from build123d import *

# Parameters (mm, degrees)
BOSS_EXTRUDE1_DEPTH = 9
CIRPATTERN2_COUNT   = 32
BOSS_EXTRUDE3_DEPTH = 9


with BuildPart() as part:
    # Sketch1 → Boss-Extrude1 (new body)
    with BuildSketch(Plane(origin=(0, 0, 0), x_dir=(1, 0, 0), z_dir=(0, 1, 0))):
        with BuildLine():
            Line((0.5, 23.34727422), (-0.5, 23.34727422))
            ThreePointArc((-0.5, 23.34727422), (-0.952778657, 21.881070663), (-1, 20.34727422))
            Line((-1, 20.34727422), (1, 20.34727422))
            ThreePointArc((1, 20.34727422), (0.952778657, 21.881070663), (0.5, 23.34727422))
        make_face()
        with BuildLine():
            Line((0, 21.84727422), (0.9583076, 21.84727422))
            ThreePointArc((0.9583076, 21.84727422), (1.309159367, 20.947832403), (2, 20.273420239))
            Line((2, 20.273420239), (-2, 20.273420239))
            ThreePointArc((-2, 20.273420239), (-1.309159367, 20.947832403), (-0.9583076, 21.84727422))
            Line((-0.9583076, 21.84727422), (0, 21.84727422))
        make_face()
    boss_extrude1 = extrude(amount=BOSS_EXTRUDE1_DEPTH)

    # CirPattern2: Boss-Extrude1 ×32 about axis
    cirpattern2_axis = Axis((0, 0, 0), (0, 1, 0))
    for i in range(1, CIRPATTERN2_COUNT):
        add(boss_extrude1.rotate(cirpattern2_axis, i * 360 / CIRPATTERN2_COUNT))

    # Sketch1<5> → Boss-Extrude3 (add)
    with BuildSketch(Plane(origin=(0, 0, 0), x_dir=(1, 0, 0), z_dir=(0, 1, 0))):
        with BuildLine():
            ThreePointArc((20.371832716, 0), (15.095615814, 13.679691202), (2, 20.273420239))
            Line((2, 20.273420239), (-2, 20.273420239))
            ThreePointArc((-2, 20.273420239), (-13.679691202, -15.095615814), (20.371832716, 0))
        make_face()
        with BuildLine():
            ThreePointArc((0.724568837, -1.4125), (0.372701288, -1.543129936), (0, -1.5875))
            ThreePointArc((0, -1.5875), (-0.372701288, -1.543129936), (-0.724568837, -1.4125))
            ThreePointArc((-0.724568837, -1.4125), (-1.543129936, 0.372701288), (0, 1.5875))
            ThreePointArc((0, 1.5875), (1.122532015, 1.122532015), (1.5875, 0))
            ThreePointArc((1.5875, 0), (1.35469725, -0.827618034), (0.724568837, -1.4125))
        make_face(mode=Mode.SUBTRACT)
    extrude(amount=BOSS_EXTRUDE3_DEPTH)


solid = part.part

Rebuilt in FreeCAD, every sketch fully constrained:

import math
import FreeCAD as App
import Part
import Sketcher
from FreeCAD import Vector
Q = App.Units.Quantity

doc = App.newDocument("Part")
body = doc.addObject("PartDesign::Body", "Body")

sketch1 = body.newObject("Sketcher::SketchObject", "Sketch")
sketch1.AttachmentSupport = (doc.getObject("XZ_Plane"), [""])
sketch1.MapMode = "FlatFace"
sketch1.addGeometry(Part.ArcOfCircle(Part.Circle(Vector(-4.696532, -20.939519, 0), Vector(0, 0, 1), 5.727236), math.radians(-24.860124), math.radians(-9.119725)), False)
sketch1.addGeometry(Part.LineSegment(Vector(0.5, -23.347274, 0), Vector(-0.5, -23.347274, 0)), False)
sketch1.addGeometry(Part.ArcOfCircle(Part.Circle(Vector(4.696532, -20.939519, 0), Vector(0, 0, 1), 5.727236), math.radians(-170.880275), math.radians(-155.139876)), False)
sketch1.addGeometry(Part.ArcOfCircle(Part.Circle(Vector(-3.215552, -22.209623, 0), Vector(0, 0, 1), 2.286143), math.radians(9.119725), math.radians(57.879322)), False)
sketch1.addGeometry(Part.LineSegment(Vector(-2, -20.27342, 0), Vector(2, -20.27342, 0)), False)
sketch1.addGeometry(Part.ArcOfCircle(Part.Circle(Vector(3.215552, -22.209623, 0), Vector(0, 0, 1), 2.286143), math.radians(122.120678), math.radians(170.880275)), False)
sketch1.addConstraint(Sketcher.Constraint("Coincident", 0, 1, 1, 1))
sketch1.addConstraint(Sketcher.Constraint("Coincident", 1, 2, 2, 2))
sketch1.addConstraint(Sketcher.Constraint("Tangent", 2, 1, 3, 1))
sketch1.addConstraint(Sketcher.Constraint("Coincident", 3, 2, 4, 1))
sketch1.addConstraint(Sketcher.Constraint("Coincident", 4, 2, 5, 1))
sketch1.addConstraint(Sketcher.Constraint("Tangent", 5, 2, 0, 2))
sketch1.addConstraint(Sketcher.Constraint("Horizontal", 1))
sketch1.addConstraint(Sketcher.Constraint("Horizontal", 4))
sketch1.addConstraint(Sketcher.Constraint("Equal", 0, 2))
sketch1.addConstraint(Sketcher.Constraint("Equal", 3, 5))
sketch1.addConstraint(Sketcher.Constraint("Symmetric", 0, 3, 2, 3, -2))
sketch1.addConstraint(Sketcher.Constraint("Horizontal", 3, 3, 5, 3))
sketch1.addConstraint(Sketcher.Constraint("DistanceX", 1, 2, 1, 1, Q("1 mm")))
sketch1.addConstraint(Sketcher.Constraint("DistanceX", 4, 1, 4, 2, Q("4 mm")))
sketch1.addConstraint(Sketcher.Constraint("DistanceY", 1, 2, 2, 1, Q("1.5 mm")))
sketch1.addConstraint(Sketcher.Constraint("Radius", 0, Q("5.727236 mm")))
sketch1.addConstraint(Sketcher.Constraint("Radius", 3, Q("2.286143 mm")))
sketch1.addConstraint(Sketcher.Constraint("DistanceY", 0, 3, 3, 2, Q("0.666099 mm")))
sketch1.addConstraint(Sketcher.Constraint("DistanceY", 0, 3, -1, 1, Q("20.939519 mm")))
pad1 = body.newObject("PartDesign::Pad", "Pad")
pad1.Profile = sketch1
pad1.Length = 9
pad1.Reversed = True
doc.recompute()

polarpattern = body.newObject("PartDesign::PolarPattern", "PolarPattern")
polarpattern.Originals = [pad1]
polarpattern.Axis = (doc.getObject("Y_Axis"), [""])
polarpattern.Angle = 360
polarpattern.Occurrences = 32
body.Tip = polarpattern

sketch2 = body.newObject("Sketcher::SketchObject", "Sketch001")
sketch2.AttachmentSupport = (doc.getObject("XZ_Plane"), [""])
sketch2.MapMode = "FlatFace"
sketch2.addGeometry(Part.ArcOfCircle(Part.Circle(Vector(0, 0, 0), Vector(0, 0, 1), 20.371833), math.radians(-84.365925), math.radians(0)), False)
sketch2.addGeometry(Part.LineSegment(Vector(2, -20.27342, 0), Vector(-2, -20.27342, 0)), False)
sketch2.addGeometry(Part.ArcOfCircle(Part.Circle(Vector(0, 0, 0), Vector(0, 0, 1), 20.371833), math.radians(0), math.radians(264.365925)), False)
sketch2.addGeometry(Part.ArcOfCircle(Part.Circle(Vector(0, 0, 0), Vector(0, 0, 1), 1.5875), math.radians(0), math.radians(62.843579)), False)
sketch2.addGeometry(Part.ArcOfCircle(Part.Circle(Vector(0, 0, 0), Vector(0, 0, 1), 1.5875), math.radians(62.843579), math.radians(90)), False)
sketch2.addGeometry(Part.ArcOfCircle(Part.Circle(Vector(0, 0, 0), Vector(0, 0, 1), 1.5875), math.radians(90), math.radians(117.156421)), False)
sketch2.addGeometry(Part.ArcOfCircle(Part.Circle(Vector(0, 0, 0), Vector(0, 0, 1), 1.5875), math.radians(117.156421), math.radians(270)), False)
sketch2.addGeometry(Part.ArcOfCircle(Part.Circle(Vector(0, 0, 0), Vector(0, 0, 1), 1.5875), math.radians(-90), math.radians(0)), False)
sketch2.addConstraint(Sketcher.Constraint("Coincident", 0, 1, 1, 1))
sketch2.addConstraint(Sketcher.Constraint("Coincident", 1, 2, 2, 2))
sketch2.addConstraint(Sketcher.Constraint("Tangent", 2, 1, 0, 2))
sketch2.addConstraint(Sketcher.Constraint("Tangent", 3, 2, 4, 1))
sketch2.addConstraint(Sketcher.Constraint("Tangent", 4, 2, 5, 1))
sketch2.addConstraint(Sketcher.Constraint("Tangent", 5, 2, 6, 1))
sketch2.addConstraint(Sketcher.Constraint("Tangent", 6, 2, 7, 1))
sketch2.addConstraint(Sketcher.Constraint("Tangent", 7, 2, 3, 1))
sketch2.addConstraint(Sketcher.Constraint("Horizontal", 1))
sketch2.addConstraint(Sketcher.Constraint("Coincident", 0, 3, -1, 1))
sketch2.addConstraint(Sketcher.Constraint("Coincident", 3, 3, -1, 1))
sketch2.addConstraint(Sketcher.Constraint("Coincident", 5, 3, -1, 1))
sketch2.addConstraint(Sketcher.Constraint("Equal", 0, 2))
sketch2.addConstraint(Sketcher.Constraint("PointOnObject", 2, 1, -1))
sketch2.addConstraint(Sketcher.Constraint("PointOnObject", 4, 2, -2))
sketch2.addConstraint(Sketcher.Constraint("PointOnObject", 6, 2, -2))
sketch2.addConstraint(Sketcher.Constraint("PointOnObject", 7, 2, -1))
sketch2.addConstraint(Sketcher.Constraint("Horizontal", 3, 2, 5, 2))
sketch2.addConstraint(Sketcher.Constraint("DistanceX", 1, 2, 1, 1, Q("4 mm")))
sketch2.addConstraint(Sketcher.Constraint("Radius", 3, Q("1.5875 mm")))
sketch2.addConstraint(Sketcher.Constraint("Radius", 0, Q("20.371833 mm")))
sketch2.addConstraint(Sketcher.Constraint("DistanceY", 3, 2, 4, 2, Q("0.175 mm")))
pad2 = body.newObject("PartDesign::Pad", "Pad001")
pad2.Profile = sketch2
pad2.Length = 9
pad2.Reversed = True

doc.recompute()
